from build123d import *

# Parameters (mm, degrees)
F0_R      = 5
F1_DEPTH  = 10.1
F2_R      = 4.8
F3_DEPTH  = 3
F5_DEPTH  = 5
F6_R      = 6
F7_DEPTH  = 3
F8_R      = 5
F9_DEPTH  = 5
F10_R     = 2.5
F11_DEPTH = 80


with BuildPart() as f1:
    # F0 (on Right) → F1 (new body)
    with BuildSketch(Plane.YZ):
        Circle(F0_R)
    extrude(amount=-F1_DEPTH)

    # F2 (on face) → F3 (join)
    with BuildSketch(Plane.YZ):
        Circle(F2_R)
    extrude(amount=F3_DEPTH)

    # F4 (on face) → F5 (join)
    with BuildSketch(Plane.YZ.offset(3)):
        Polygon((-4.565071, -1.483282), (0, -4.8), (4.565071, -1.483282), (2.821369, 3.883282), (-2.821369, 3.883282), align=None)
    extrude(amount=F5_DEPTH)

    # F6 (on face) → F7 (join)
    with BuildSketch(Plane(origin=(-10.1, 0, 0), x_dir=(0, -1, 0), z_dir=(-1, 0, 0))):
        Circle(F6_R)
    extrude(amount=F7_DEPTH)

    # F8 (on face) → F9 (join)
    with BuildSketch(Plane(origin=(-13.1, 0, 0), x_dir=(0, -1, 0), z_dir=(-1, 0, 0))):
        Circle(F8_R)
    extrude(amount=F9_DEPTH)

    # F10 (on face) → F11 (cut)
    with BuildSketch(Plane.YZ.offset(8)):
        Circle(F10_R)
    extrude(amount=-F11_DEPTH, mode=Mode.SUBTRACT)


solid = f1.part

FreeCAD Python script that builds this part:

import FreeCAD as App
import Part
import Sketcher

V = App.Vector
Q = App.Units.Quantity


def add_polygon(sketch, points):
    """Adds a closed chain of lines whose ends are joined by coincident constraints."""
    first, n = sketch.GeometryCount, len(points)
    for a, b in zip(points, points[1:] + points[:1]):
        sketch.addGeometry(Part.LineSegment(App.Vector(*a, 0), App.Vector(*b, 0)), False)
    for i in range(n):
        sketch.addConstraint(Sketcher.Constraint("Coincident", first + i, 2, first + (i + 1) % n, 1))

doc = App.newDocument("Part")
body = doc.addObject("PartDesign::Body", "Body")

# Sketch on YZ plane
sketch1 = body.newObject("Sketcher::SketchObject", "Sketch")
sketch1.AttachmentSupport = (doc.getObject("YZ_Plane"), [""])
sketch1.MapMode = "FlatFace"
sketch1.addGeometry(Part.Circle(V(0, 0, 0), V(0, 0, 1), 5), False)
sketch1.addConstraint([
    Sketcher.Constraint("Coincident", 0, 3, -1, 1),
    Sketcher.Constraint("Diameter", 0, 10.0),
])
pad1 = body.newObject("PartDesign::Pad", "Pad")
pad1.Profile = sketch1
pad1.Length = 10.1
pad1.Reversed = True

# Sketch on YZ plane
sketch2 = body.newObject("Sketcher::SketchObject", "Sketch001")
sketch2.AttachmentSupport = (doc.getObject("YZ_Plane"), [""])
sketch2.MapMode = "FlatFace"
sketch2.addGeometry(Part.Circle(V(0, 0, 0), V(0, 0, 1), 4.8), False)
sketch2.addConstraint([
    Sketcher.Constraint("Coincident", 0, 3, -1, 1),
    Sketcher.Constraint("Diameter", 0, 9.6),
])
pad2 = body.newObject("PartDesign::Pad", "Pad001")
pad2.Profile = sketch2
pad2.Length = 3

# Sketch on YZ plane
sketch3 = body.newObject("Sketcher::SketchObject", "Sketch002")
sketch3.AttachmentSupport = (doc.getObject("YZ_Plane"), [""])
sketch3.MapMode = "FlatFace"
sketch3.AttachmentOffset = App.Placement(V(0, 0, 3), App.Rotation())
add_polygon(sketch3, [(-5, -1), (0, -5), (5, -1), (3, 4), (-3, 4)])  # lines 0-4
sketch3.addConstraint([
    Sketcher.Constraint("Horizontal", 3),
    Sketcher.Constraint("Symmetric", 1, 2, 4, 2, -2),
    Sketcher.Constraint("PointOnObject", 0, 2, -2),
    Sketcher.Constraint("Equal", 1, 2),
    Sketcher.Constraint("Equal", 2, 4),
    Sketcher.Constraint("Angle", 0, Q("-35.999998 deg")),
    Sketcher.Constraint("Angle", 2, Q("107.999997 deg")),
    Sketcher.Constraint("DistanceY", 0, 2, -1, 1, 4.8),
    Sketcher.Constraint("DistanceX", 2, 2, 1, 2, 1.743702),
])
pad3 = body.newObject("PartDesign::Pad", "Pad002")
pad3.Profile = sketch3
pad3.Length = 5

# Sketch on YZ plane
sketch4 = body.newObject("Sketcher::SketchObject", "Sketch003")
sketch4.AttachmentSupport = (doc.getObject("YZ_Plane"), [""])
sketch4.MapMode = "FlatFace"
sketch4.AttachmentOffset = App.Placement(V(0, 0, -10.1), App.Rotation())
sketch4.addGeometry(Part.Circle(V(0, 0, 0), V(0, 0, 1), 6), False)
sketch4.addConstraint([
    Sketcher.Constraint("Coincident", 0, 3, -1, 1),
    Sketcher.Constraint("Diameter", 0, 12.0),
])
pad4 = body.newObject("PartDesign::Pad", "Pad003")
pad4.Profile = sketch4
pad4.Length = 3
pad4.Reversed = True

# Sketch on YZ plane
sketch5 = body.newObject("Sketcher::SketchObject", "Sketch004")
sketch5.AttachmentSupport = (doc.getObject("YZ_Plane"), [""])
sketch5.MapMode = "FlatFace"
sketch5.AttachmentOffset = App.Placement(V(0, 0, -13.1), App.Rotation())
sketch5.addGeometry(Part.Circle(V(0, 0, 0), V(0, 0, 1), 5), False)
sketch5.addConstraint([
    Sketcher.Constraint("Coincident", 0, 3, -1, 1),
    Sketcher.Constraint("Diameter", 0, 10.0),
])
pad5 = body.newObject("PartDesign::Pad", "Pad004")
pad5.Profile = sketch5
pad5.Length = 5
pad5.Reversed = True

# Sketch on YZ plane
sketch6 = body.newObject("Sketcher::SketchObject", "Sketch005")
sketch6.AttachmentSupport = (doc.getObject("YZ_Plane"), [""])
sketch6.MapMode = "FlatFace"
sketch6.AttachmentOffset = App.Placement(V(0, 0, 8), App.Rotation())
sketch6.addGeometry(Part.Circle(V(0, 0, 0), V(0, 0, 1), 2.5), False)
sketch6.addConstraint([
    Sketcher.Constraint("Coincident", 0, 3, -1, 1),
    Sketcher.Constraint("Diameter", 0, 5.0),
])
pocket1 = body.newObject("PartDesign::Pocket", "Pocket")
pocket1.Profile = sketch6
pocket1.Length = 80

doc.recompute()
